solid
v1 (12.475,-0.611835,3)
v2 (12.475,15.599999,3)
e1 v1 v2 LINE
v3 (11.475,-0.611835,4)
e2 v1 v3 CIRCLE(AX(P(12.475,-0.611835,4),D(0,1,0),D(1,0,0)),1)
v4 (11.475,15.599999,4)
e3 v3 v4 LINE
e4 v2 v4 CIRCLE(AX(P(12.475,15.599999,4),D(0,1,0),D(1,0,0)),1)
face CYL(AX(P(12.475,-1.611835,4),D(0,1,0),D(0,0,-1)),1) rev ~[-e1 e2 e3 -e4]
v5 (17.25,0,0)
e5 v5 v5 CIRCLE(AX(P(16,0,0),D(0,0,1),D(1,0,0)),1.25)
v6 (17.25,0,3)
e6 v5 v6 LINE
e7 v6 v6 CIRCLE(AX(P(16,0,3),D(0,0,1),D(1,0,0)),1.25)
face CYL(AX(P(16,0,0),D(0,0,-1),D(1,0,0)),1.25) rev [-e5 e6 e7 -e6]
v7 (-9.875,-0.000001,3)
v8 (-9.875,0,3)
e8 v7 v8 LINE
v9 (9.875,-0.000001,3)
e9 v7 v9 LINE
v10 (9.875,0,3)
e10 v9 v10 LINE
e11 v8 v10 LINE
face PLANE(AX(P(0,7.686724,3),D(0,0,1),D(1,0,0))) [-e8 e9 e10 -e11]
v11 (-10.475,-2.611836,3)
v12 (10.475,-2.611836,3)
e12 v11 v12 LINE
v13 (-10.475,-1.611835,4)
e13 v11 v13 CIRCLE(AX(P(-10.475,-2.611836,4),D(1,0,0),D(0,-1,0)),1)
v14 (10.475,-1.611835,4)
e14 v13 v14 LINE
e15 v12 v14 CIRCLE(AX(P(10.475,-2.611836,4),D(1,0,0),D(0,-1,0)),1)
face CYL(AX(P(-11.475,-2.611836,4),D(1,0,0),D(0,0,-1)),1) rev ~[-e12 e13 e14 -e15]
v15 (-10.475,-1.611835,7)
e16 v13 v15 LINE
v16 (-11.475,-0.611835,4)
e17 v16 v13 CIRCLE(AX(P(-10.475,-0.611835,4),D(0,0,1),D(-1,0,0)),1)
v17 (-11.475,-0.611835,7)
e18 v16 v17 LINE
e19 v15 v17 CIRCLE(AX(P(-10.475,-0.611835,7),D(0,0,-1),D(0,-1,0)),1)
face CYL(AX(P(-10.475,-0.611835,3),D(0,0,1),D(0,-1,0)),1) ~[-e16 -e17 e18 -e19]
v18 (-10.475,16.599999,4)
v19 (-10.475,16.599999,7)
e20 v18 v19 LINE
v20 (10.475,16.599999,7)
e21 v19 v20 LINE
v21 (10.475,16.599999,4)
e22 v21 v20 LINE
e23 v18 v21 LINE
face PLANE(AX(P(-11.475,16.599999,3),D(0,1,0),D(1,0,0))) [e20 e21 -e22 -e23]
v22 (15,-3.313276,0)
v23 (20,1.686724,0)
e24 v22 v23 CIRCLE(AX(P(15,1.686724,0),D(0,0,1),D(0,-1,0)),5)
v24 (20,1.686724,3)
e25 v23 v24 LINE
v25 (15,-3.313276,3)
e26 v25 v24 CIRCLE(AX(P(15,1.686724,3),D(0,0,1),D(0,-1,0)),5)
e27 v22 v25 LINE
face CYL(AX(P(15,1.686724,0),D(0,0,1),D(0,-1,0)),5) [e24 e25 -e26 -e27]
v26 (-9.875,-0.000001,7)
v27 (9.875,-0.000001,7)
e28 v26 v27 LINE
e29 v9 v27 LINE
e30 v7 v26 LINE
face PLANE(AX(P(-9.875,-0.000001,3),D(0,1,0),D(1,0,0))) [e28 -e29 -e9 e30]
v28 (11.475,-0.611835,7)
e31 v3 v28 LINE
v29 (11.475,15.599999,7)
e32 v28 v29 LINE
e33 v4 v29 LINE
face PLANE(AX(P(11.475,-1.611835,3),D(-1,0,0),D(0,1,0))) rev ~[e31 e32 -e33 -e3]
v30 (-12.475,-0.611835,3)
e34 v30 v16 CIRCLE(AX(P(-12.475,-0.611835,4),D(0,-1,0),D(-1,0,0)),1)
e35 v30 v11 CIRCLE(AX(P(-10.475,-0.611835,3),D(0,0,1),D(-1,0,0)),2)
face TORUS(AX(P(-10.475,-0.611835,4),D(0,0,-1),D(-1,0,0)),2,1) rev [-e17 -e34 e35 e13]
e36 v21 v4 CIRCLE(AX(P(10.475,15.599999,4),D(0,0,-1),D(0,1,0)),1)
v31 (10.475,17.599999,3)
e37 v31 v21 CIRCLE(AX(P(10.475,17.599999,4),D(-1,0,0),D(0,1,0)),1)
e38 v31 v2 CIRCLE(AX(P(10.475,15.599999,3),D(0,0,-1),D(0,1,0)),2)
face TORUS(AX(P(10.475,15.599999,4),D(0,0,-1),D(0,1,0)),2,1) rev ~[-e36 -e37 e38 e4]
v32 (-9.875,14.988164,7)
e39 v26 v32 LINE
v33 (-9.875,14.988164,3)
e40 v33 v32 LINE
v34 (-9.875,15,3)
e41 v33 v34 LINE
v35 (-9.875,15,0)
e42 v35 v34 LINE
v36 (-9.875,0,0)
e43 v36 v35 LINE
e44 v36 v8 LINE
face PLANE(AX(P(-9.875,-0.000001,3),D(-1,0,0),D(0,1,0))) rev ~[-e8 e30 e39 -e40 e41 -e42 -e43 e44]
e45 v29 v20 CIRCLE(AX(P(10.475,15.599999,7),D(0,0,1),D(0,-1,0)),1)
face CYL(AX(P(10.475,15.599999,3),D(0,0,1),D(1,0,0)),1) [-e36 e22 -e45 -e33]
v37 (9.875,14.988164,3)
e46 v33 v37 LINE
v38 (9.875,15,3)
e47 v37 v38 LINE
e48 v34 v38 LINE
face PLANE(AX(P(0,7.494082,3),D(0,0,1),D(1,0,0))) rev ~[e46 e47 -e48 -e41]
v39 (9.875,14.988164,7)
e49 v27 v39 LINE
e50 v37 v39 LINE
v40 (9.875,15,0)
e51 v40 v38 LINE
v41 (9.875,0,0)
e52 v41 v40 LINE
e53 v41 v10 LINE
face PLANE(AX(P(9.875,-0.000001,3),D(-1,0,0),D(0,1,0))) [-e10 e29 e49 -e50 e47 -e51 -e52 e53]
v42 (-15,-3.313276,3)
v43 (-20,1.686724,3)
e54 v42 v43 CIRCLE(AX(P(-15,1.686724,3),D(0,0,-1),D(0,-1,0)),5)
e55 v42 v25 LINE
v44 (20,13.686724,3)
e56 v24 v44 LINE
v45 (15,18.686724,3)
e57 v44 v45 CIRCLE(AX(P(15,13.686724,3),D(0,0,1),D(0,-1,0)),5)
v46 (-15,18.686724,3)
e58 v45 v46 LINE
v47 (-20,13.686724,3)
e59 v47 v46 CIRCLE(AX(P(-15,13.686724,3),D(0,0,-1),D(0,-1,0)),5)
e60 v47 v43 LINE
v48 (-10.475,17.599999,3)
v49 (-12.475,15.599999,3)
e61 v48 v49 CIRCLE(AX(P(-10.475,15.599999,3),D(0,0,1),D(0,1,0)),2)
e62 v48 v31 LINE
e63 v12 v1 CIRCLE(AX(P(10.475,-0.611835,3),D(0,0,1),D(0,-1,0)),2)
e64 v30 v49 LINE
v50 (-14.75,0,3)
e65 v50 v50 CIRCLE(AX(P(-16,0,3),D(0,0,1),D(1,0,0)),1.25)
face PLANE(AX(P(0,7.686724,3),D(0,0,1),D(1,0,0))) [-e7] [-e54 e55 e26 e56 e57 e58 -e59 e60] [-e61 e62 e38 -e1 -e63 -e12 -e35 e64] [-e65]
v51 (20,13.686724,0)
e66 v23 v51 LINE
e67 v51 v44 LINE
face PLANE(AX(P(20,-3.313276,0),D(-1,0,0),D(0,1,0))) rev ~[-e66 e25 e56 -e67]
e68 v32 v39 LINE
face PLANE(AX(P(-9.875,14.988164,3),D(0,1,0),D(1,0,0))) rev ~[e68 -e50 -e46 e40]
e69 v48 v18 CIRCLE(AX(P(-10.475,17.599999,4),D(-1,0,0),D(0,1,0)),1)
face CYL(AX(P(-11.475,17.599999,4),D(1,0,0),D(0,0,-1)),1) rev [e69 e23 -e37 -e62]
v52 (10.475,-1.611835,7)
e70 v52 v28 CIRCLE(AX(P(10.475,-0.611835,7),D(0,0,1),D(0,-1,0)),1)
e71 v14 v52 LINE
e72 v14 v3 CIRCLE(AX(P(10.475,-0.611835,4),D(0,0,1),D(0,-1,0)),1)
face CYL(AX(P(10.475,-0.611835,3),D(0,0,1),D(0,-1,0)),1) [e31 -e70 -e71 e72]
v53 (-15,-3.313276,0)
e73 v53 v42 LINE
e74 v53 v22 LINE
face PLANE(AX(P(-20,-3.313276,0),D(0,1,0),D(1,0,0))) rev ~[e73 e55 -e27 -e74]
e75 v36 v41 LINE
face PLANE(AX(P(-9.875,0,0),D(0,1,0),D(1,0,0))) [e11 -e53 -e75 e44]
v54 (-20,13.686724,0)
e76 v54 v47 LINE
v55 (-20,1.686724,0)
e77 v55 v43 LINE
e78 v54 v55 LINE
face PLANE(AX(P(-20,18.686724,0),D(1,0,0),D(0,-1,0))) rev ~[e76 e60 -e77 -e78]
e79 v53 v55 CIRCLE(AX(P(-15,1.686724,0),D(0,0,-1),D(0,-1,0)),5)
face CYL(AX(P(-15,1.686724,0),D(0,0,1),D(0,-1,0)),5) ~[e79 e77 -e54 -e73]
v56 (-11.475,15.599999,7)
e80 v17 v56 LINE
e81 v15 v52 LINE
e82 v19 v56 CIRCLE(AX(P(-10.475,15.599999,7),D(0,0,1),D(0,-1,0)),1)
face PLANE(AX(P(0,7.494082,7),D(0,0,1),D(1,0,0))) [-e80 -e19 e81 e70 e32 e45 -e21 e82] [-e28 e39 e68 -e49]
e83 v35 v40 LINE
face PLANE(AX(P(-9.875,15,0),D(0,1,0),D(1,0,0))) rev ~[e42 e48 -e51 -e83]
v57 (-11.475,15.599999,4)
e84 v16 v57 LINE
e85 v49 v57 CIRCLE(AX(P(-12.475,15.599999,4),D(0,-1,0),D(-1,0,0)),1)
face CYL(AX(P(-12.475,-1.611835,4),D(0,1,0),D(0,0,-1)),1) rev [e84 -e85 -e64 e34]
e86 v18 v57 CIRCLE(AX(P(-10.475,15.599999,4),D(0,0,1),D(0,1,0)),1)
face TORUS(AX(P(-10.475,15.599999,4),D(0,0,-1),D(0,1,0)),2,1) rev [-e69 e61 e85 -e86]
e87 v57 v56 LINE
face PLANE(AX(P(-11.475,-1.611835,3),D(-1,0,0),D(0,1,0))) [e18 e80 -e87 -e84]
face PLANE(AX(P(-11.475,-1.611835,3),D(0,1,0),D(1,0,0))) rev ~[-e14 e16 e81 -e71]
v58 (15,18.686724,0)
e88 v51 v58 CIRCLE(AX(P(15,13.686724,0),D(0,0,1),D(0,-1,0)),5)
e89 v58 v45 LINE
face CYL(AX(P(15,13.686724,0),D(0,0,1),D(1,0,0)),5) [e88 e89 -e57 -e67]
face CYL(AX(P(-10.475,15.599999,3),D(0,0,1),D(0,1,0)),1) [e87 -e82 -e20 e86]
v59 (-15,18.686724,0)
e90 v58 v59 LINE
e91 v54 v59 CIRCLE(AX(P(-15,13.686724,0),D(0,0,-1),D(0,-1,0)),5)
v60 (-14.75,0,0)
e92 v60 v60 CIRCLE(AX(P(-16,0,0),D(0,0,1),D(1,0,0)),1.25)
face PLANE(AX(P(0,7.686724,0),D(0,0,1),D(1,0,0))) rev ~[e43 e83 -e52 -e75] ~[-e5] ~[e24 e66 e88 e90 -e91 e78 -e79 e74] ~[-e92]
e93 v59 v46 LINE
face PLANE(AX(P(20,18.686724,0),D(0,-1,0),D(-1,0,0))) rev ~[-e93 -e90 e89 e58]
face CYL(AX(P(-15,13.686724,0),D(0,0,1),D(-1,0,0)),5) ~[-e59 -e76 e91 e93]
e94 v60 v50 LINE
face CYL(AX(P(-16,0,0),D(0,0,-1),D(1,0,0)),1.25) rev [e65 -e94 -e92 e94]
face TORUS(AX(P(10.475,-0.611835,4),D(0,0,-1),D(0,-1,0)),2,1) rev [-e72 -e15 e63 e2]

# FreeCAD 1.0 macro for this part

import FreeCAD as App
import Part
import Sketcher
Q = App.Units.Quantity


def edges_at(feature, points):
    """Names of the edges that pass closest to the given points."""
    edges = feature.Shape.Edges
    near = lambda p: min(range(len(edges)), key=lambda i: edges[i].distToShape(Part.Vertex(*p))[0])
    return sorted({f"Edge{near(p) + 1}" for p in points})

doc = App.newDocument("Part")
body = doc.addObject("PartDesign::Body", "Body")

# Sketch on XY plane
sketch1 = body.newObject("Sketcher::SketchObject", "Sketch")
sketch1.AttachmentSupport = (doc.getObject("XY_Plane"), [""])
sketch1.MapMode = "FlatFace"
sketch1.addGeometry([
    Part.LineSegment(App.Vector(-20, -3.313276, 0), App.Vector(20, -3.313276, 0)),  # 0
    Part.LineSegment(App.Vector(20, -3.313276, 0), App.Vector(20, 18.686724, 0)),  # 1
    Part.LineSegment(App.Vector(20, 18.686724, 0), App.Vector(-20, 18.686724, 0)),  # 2
    Part.LineSegment(App.Vector(-20, 18.686724, 0), App.Vector(-20, -3.313276, 0)),  # 3
    Part.Circle(App.Vector(-16, 0, 0), App.Vector(0, 0, 1), 1.25),  # 4
    Part.Circle(App.Vector(16, 0, 0), App.Vector(0, 0, 1), 1.25),  # 5
    Part.LineSegment(App.Vector(9.875, 0, 0), App.Vector(-9.875, 0, 0)),  # 6
    Part.LineSegment(App.Vector(-9.875, 0, 0), App.Vector(-9.875, 15, 0)),  # 7
    Part.LineSegment(App.Vector(-9.875, 15, 0), App.Vector(9.875, 15, 0)),  # 8
    Part.LineSegment(App.Vector(9.875, 15, 0), App.Vector(9.875, 0, 0)),  # 9
], False)
sketch1.addConstraint([
    Sketcher.Constraint("Coincident", 0, 2, 1, 1),
    Sketcher.Constraint("Coincident", 1, 2, 2, 1),
    Sketcher.Constraint("Coincident", 2, 2, 3, 1),
    Sketcher.Constraint("Coincident", 3, 2, 0, 1),
    Sketcher.Constraint("Coincident", 6, 2, 7, 1),
    Sketcher.Constraint("Coincident", 7, 2, 8, 1),
    Sketcher.Constraint("Coincident", 8, 2, 9, 1),
    Sketcher.Constraint("Coincident", 9, 2, 6, 1),
    Sketcher.Constraint("Horizontal", 0),
    Sketcher.Constraint("Vertical", 1),
    Sketcher.Constraint("Horizontal", 2),
    Sketcher.Constraint("Vertical", 3),
    Sketcher.Constraint("Horizontal", 6),
    Sketcher.Constraint("Vertical", 7),
    Sketcher.Constraint("Horizontal", 8),
    Sketcher.Constraint("Vertical", 9),
    Sketcher.Constraint("Equal", 4, 5),
    Sketcher.Constraint("Symmetric", 4, 3, 5, 3, -1, 1),
    Sketcher.Constraint("Symmetric", 6, 2, 9, 2, -1, 1),
    Sketcher.Constraint("PointOnObject", 4, 3, -1),
    Sketcher.Constraint("Diameter", 4, Q("2.5 mm")),
    Sketcher.Constraint("DistanceX", 0, 1, 0, 2, Q("40 mm")),
    Sketcher.Constraint("DistanceY", 1, 1, 1, 2, Q("22 mm")),
    Sketcher.Constraint("DistanceY", 7, 1, 7, 2, Q("15 mm")),
    Sketcher.Constraint("DistanceX", 4, 3, -1, 1, Q("16 mm")),
    Sketcher.Constraint("DistanceX", -1, 1, 0, 2, Q("20 mm")),
    Sketcher.Constraint("DistanceX", 6, 2, 6, 1, Q("19.75 mm")),
    Sketcher.Constraint("DistanceY", 0, 2, -1, 1, Q("3.313276 mm")),
])
pad1 = body.newObject("PartDesign::Pad", "Pad")
pad1.Profile = sketch1
pad1.Length = 3

# Sketch on XY plane
sketch2 = body.newObject("Sketcher::SketchObject", "Sketch001")
sketch2.AttachmentSupport = (doc.getObject("XY_Plane"), [""])
sketch2.MapMode = "FlatFace"
sketch2.AttachmentOffset = App.Placement(App.Vector(0, 0, 3), App.Rotation())
sketch2.addGeometry([
    Part.LineSegment(App.Vector(-11.475, 16.599999, 0), App.Vector(-11.475, -1.611835, 0)),  # 0
    Part.LineSegment(App.Vector(-11.475, -1.611835, 0), App.Vector(11.475, -1.611835, 0)),  # 1
    Part.LineSegment(App.Vector(11.475, -1.611835, 0), App.Vector(11.475, 16.599999, 0)),  # 2
    Part.LineSegment(App.Vector(11.475, 16.599999, 0), App.Vector(-11.475, 16.599999, 0)),  # 3
    Part.LineSegment(App.Vector(9.875, 0, 0), App.Vector(-9.875, 0, 0)),  # 4
    Part.LineSegment(App.Vector(-9.875, 0, 0), App.Vector(-9.875, 14.988164, 0)),  # 5
    Part.LineSegment(App.Vector(-9.875, 14.988164, 0), App.Vector(9.875, 14.988164, 0)),  # 6
    Part.LineSegment(App.Vector(9.875, 14.988164, 0), App.Vector(9.875, 0, 0)),  # 7
], False)
sketch2.addConstraint([
    Sketcher.Constraint("Coincident", 0, 2, 1, 1),
    Sketcher.Constraint("Coincident", 1, 2, 2, 1),
    Sketcher.Constraint("Coincident", 2, 2, 3, 1),
    Sketcher.Constraint("Coincident", 3, 2, 0, 1),
    Sketcher.Constraint("Coincident", 4, 2, 5, 1),
    Sketcher.Constraint("Coincident", 5, 2, 6, 1),
    Sketcher.Constraint("Coincident", 6, 2, 7, 1),
    Sketcher.Constraint("Coincident", 7, 2, 4, 1),
    Sketcher.Constraint("Vertical", 0),
    Sketcher.Constraint("Horizontal", 1),
    Sketcher.Constraint("Vertical", 2),
    Sketcher.Constraint("Horizontal", 3),
    Sketcher.Constraint("Horizontal", 4),
    Sketcher.Constraint("Vertical", 5),
    Sketcher.Constraint("Horizontal", 6),
    Sketcher.Constraint("Vertical", 7),
    Sketcher.Constraint("Symmetric", 4, 2, 7, 2, -1, 1),
    Sketcher.Constraint("DistanceX", 1, 1, 1, 2, Q("22.95 mm")),
    Sketcher.Constraint("DistanceX", 4, 2, 4, 1, Q("19.75 mm")),
    Sketcher.Constraint("DistanceY", -1, 1, 2, 2, Q("16.599999 mm")),
    Sketcher.Constraint("DistanceX", 0, 2, 4, 2, Q("1.6 mm")),
    Sketcher.Constraint("DistanceY", 0, 2, 5, 2, Q("16.6 mm")),
    Sketcher.Constraint("DistanceY", 0, 2, 0, 1, Q("18.211835 mm")),
])
pad2 = body.newObject("PartDesign::Pad", "Pad001")
pad2.Profile = sketch2
pad2.Length = 4
doc.recompute()

fillet = body.newObject("PartDesign::Fillet", "Fillet")
fillet.Base = (pad2, edges_at(pad2, [
    (-20, 18.687, 1.5),
    (20, 18.687, 1.5),
    (-20, -3.313, 1.5),
    (20, -3.313, 1.5),
]))
fillet.Radius = 5
doc.recompute()

fillet2 = body.newObject("PartDesign::Fillet", "Fillet001")
fillet2.Base = (fillet, edges_at(fillet, [
    (0, 16.6, 3),
    (-11.475, 7.494, 3),
    (0, -1.612, 3),
    (11.475, 7.494, 3),
    (11.475, -1.612, 5),
    (-11.475, -1.612, 5),
    (11.475, 16.6, 5),
    (-11.475, 16.6, 5),
]))
fillet2.Radius = 1

doc.recompute()
